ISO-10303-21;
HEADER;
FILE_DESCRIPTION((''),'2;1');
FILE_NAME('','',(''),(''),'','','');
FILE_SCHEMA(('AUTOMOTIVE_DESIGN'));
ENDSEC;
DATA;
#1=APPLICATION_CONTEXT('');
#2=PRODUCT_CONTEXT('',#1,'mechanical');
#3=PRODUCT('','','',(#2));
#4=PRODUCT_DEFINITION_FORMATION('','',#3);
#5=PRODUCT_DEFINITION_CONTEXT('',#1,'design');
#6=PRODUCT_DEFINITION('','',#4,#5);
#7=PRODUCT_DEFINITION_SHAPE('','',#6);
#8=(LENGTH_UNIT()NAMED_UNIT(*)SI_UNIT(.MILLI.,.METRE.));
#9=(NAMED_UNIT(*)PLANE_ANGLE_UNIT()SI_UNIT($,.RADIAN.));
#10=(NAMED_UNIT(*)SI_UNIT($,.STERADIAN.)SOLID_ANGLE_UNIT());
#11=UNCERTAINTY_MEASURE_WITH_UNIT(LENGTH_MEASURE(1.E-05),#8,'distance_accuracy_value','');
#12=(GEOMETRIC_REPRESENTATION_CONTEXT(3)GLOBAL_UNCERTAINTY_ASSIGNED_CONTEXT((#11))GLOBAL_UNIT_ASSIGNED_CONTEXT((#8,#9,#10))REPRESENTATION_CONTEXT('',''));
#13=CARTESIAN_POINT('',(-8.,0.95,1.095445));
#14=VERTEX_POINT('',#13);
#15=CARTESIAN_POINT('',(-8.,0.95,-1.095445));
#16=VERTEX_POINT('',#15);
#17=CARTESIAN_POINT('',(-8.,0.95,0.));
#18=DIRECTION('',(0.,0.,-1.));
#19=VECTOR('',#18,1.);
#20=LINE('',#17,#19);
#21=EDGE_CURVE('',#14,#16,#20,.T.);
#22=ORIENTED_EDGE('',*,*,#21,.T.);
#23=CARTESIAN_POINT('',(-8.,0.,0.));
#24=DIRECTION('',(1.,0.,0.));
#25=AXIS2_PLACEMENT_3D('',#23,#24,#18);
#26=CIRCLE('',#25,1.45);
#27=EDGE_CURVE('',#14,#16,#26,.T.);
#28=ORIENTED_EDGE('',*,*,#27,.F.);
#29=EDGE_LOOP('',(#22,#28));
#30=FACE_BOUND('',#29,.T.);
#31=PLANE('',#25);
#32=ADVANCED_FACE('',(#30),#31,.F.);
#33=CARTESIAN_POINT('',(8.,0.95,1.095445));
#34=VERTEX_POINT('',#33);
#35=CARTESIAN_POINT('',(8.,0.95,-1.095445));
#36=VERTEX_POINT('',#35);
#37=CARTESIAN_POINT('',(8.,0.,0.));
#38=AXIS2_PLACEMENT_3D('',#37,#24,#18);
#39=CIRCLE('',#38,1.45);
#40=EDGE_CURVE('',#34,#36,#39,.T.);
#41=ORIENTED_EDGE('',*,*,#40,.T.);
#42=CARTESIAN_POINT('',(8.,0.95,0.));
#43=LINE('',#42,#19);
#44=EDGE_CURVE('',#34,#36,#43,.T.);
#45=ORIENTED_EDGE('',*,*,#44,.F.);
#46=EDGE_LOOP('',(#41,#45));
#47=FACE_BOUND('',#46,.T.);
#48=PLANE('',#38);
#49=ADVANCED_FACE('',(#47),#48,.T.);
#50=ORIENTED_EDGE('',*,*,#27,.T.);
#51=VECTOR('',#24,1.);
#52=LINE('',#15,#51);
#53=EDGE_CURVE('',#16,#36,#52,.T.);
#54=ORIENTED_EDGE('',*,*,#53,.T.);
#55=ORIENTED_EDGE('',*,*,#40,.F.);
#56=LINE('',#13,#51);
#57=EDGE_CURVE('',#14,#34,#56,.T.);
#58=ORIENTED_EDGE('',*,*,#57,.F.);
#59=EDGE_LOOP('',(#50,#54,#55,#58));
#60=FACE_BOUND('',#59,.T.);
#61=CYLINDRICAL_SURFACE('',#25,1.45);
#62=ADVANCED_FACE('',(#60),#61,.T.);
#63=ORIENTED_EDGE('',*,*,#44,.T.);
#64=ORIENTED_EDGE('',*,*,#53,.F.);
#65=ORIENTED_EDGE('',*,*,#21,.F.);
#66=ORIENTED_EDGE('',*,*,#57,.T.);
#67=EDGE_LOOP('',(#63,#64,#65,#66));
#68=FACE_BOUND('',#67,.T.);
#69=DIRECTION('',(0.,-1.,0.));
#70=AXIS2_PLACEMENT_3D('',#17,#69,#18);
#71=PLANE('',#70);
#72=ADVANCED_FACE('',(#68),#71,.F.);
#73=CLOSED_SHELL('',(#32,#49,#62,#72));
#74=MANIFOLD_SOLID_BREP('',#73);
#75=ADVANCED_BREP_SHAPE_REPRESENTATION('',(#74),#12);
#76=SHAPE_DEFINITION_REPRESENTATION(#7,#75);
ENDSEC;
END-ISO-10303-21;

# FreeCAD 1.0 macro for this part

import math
import FreeCAD as App
import Part
import Sketcher

V = App.Vector
Q = App.Units.Quantity

doc = App.newDocument("Part")
body = doc.addObject("PartDesign::Body", "Body")

# Sketch on YZ plane
sketch1 = doc.addObject("Sketcher::SketchObject", "Sketch")
body.addObject(sketch1)
sketch1.AttachmentSupport = (doc.YZ_Plane, [""])
sketch1.MapMode = "FlatFace"
sketch1.addGeometry([
    Part.ArcOfCircle(Part.Circle(V(0, 0, 0), V(0, 0, 1), 1.4), math.radians(49), math.radians(180)),
    Part.ArcOfCircle(Part.Circle(V(0, 0, 0), V(0, 0, 1), 1.4), math.radians(180), math.radians(311)),
    Part.LineSegment(V(0.9, -1.1, 0), V(0.9, 1.1, 0)),
], False)
sketch1.addConstraint([
    Sketcher.Constraint("Tangent", 0, 2, 1, 1),
    Sketcher.Constraint("Coincident", 1, 2, 2, 1),
    Sketcher.Constraint("Coincident", 2, 2, 0, 1),
    Sketcher.Constraint("Vertical", 2),
    Sketcher.Constraint("Coincident", 0, 3, -1, 1),
    Sketcher.Constraint("Equal", 0, 1),
    Sketcher.Constraint("PointOnObject", 0, 2, -1),
    Sketcher.Constraint("Radius", 0, Q("1.45 mm")),
    Sketcher.Constraint("DistanceX", 0, 2, 1, 2, Q("2.4 mm")),
])
pad1 = doc.addObject("PartDesign::Pad", "Pad")
body.addObject(pad1)
pad1.Profile = sketch1
pad1.Type = "TwoLengths"
pad1.Length = 8
pad1.Length2 = 8

doc.recompute()
